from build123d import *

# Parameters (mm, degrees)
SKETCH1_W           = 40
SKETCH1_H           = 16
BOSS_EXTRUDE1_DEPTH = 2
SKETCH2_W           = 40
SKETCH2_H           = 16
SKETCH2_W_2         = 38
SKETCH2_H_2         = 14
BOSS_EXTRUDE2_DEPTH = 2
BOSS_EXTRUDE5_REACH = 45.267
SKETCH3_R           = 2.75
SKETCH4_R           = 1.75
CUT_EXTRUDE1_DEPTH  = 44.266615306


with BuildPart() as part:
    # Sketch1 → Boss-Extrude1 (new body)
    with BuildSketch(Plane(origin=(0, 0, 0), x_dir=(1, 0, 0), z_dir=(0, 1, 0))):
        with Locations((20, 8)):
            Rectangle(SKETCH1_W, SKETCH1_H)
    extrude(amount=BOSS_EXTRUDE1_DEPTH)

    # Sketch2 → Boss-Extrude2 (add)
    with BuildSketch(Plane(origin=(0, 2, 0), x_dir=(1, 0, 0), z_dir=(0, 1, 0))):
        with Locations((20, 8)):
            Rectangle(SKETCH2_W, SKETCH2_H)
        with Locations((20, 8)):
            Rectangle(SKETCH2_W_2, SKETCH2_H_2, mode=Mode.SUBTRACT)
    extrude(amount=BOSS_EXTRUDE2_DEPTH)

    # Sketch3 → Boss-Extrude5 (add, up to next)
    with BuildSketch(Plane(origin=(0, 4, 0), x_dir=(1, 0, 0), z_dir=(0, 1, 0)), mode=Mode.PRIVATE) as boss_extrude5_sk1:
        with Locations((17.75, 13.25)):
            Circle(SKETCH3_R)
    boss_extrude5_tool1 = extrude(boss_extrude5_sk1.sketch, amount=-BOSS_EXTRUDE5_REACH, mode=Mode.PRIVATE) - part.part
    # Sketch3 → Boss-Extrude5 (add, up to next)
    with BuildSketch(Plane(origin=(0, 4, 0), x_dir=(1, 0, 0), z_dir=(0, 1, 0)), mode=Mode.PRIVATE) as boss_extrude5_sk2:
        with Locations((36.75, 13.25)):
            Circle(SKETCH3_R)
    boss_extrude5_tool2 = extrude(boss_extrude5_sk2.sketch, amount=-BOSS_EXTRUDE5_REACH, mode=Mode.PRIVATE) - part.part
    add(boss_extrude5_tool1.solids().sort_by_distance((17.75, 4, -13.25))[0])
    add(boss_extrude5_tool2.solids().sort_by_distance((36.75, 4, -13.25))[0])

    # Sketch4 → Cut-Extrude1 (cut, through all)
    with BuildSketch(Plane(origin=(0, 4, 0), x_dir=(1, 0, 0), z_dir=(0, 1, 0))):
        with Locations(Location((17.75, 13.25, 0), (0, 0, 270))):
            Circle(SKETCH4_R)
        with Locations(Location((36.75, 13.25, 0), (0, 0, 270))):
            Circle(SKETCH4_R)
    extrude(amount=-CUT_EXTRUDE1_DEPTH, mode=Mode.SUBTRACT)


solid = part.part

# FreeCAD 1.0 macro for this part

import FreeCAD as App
import Part
import Sketcher

V = App.Vector

doc = App.newDocument("Part")
body = doc.addObject("PartDesign::Body", "Body")

# Sketch on XZ plane
sketch1 = body.newObject("Sketcher::SketchObject", "Sketch")
sketch1.AttachmentSupport = (doc.getObject("XZ_Plane"), [""])
sketch1.MapMode = "FlatFace"
sketch1.addGeometry([
    Part.LineSegment(V(0, -16, 0), V(0, 0, 0)),
    Part.LineSegment(V(0, 0, 0), V(40, 0, 0)),
    Part.LineSegment(V(40, 0, 0), V(40, -16, 0)),
    Part.LineSegment(V(40, -16, 0), V(0, -16, 0)),
], False)
sketch1.addConstraint([
    Sketcher.Constraint("Coincident", 0, 2, 1, 1),
    Sketcher.Constraint("Coincident", 1, 2, 2, 1),
    Sketcher.Constraint("Coincident", 2, 2, 3, 1),
    Sketcher.Constraint("Coincident", 3, 2, 0, 1),
    Sketcher.Constraint("Vertical", 0),
    Sketcher.Constraint("Horizontal", 1),
    Sketcher.Constraint("Vertical", 2),
    Sketcher.Constraint("Horizontal", 3),
    Sketcher.Constraint("Coincident", 0, 2, -1, 1),
    Sketcher.Constraint("DistanceX", 1, 1, 1, 2, 40.0),
    Sketcher.Constraint("DistanceY", 0, 1, 0, 2, 16.0),
])
pad1 = body.newObject("PartDesign::Pad", "Pad")
pad1.Profile = sketch1
pad1.Length = 2
pad1.Reversed = True

# Sketch on XZ plane
sketch2 = body.newObject("Sketcher::SketchObject", "Sketch001")
sketch2.AttachmentSupport = (doc.getObject("XZ_Plane"), [""])
sketch2.MapMode = "FlatFace"
sketch2.AttachmentOffset = App.Placement(V(0, 0, -2), App.Rotation())
sketch2.addGeometry([
    Part.LineSegment(V(0, -16, 0), V(0, 0, 0)),  # 0
    Part.LineSegment(V(0, 0, 0), V(40, 0, 0)),  # 1
    Part.LineSegment(V(40, 0, 0), V(40, -16, 0)),  # 2
    Part.LineSegment(V(40, -16, 0), V(0, -16, 0)),  # 3
    Part.LineSegment(V(39, -1, 0), V(1, -1, 0)),  # 4
    Part.LineSegment(V(1, -1, 0), V(1, -15, 0)),  # 5
    Part.LineSegment(V(1, -15, 0), V(39, -15, 0)),  # 6
    Part.LineSegment(V(39, -15, 0), V(39, -1, 0)),  # 7
], False)
sketch2.addConstraint([
    Sketcher.Constraint("Coincident", 0, 2, 1, 1),
    Sketcher.Constraint("Coincident", 1, 2, 2, 1),
    Sketcher.Constraint("Coincident", 2, 2, 3, 1),
    Sketcher.Constraint("Coincident", 3, 2, 0, 1),
    Sketcher.Constraint("Coincident", 4, 2, 5, 1),
    Sketcher.Constraint("Coincident", 5, 2, 6, 1),
    Sketcher.Constraint("Coincident", 6, 2, 7, 1),
    Sketcher.Constraint("Coincident", 7, 2, 4, 1),
    Sketcher.Constraint("Vertical", 0),
    Sketcher.Constraint("Horizontal", 1),
    Sketcher.Constraint("Vertical", 2),
    Sketcher.Constraint("Horizontal", 3),
    Sketcher.Constraint("Horizontal", 4),
    Sketcher.Constraint("Vertical", 5),
    Sketcher.Constraint("Horizontal", 6),
    Sketcher.Constraint("Vertical", 7),
    Sketcher.Constraint("Coincident", 0, 2, -1, 1),
    Sketcher.Constraint("DistanceX", 1, 1, 1, 2, 40.0),
    Sketcher.Constraint("DistanceX", 4, 2, 4, 1, 38.0),
    Sketcher.Constraint("DistanceY", 0, 1, 0, 2, 16.0),
    Sketcher.Constraint("DistanceY", 5, 2, 5, 1, 14.0),
    Sketcher.Constraint("DistanceX", -1, 1, 4, 2, 1.0),
    Sketcher.Constraint("DistanceY", 4, 2, -1, 1, 1.0),
])
pad2 = body.newObject("PartDesign::Pad", "Pad001")
pad2.Profile = sketch2
pad2.Length = 2
pad2.Reversed = True

# Sketch on XZ plane
sketch3 = body.newObject("Sketcher::SketchObject", "Sketch002")
sketch3.AttachmentSupport = (doc.getObject("XZ_Plane"), [""])
sketch3.MapMode = "FlatFace"
sketch3.AttachmentOffset = App.Placement(V(0, 0, -4), App.Rotation())
sketch3.addGeometry(Part.Circle(V(17.8, -13.2, 0), V(0, 0, 1), 2.8), False)
sketch3.addConstraint([
    Sketcher.Constraint("Diameter", 0, 5.5),
    Sketcher.Constraint("DistanceX", -1, 1, 0, 3, 17.75),
    Sketcher.Constraint("DistanceY", 0, 3, -1, 1, 13.25),
])
pad3 = body.newObject("PartDesign::Pad", "Pad002")
pad3.Profile = sketch3
pad3.Type = "UpToFirst"

# Sketch on XZ plane
sketch4 = body.newObject("Sketcher::SketchObject", "Sketch003")
sketch4.AttachmentSupport = (doc.getObject("XZ_Plane"), [""])
sketch4.MapMode = "FlatFace"
sketch4.AttachmentOffset = App.Placement(V(0, 0, -4), App.Rotation())
sketch4.addGeometry(Part.Circle(V(36.8, -13.2, 0), V(0, 0, 1), 2.8), False)
sketch4.addConstraint([
    Sketcher.Constraint("Diameter", 0, 5.5),
    Sketcher.Constraint("DistanceX", -1, 1, 0, 3, 36.75),
    Sketcher.Constraint("DistanceY", 0, 3, -1, 1, 13.25),
])
pad4 = body.newObject("PartDesign::Pad", "Pad003")
pad4.Profile = sketch4
pad4.Type = "UpToFirst"

# Sketch on XZ plane
sketch5 = body.newObject("Sketcher::SketchObject", "Sketch004")
sketch5.AttachmentSupport = (doc.getObject("XZ_Plane"), [""])
sketch5.MapMode = "FlatFace"
sketch5.AttachmentOffset = App.Placement(V(0, 0, -4), App.Rotation())
sketch5.addGeometry([
    Part.Circle(V(17.8, -13.2, 0), V(0, 0, 1), 1.8),
    Part.Circle(V(36.8, -13.2, 0), V(0, 0, 1), 1.8),
], False)
sketch5.addConstraint([
    Sketcher.Constraint("Equal", 0, 1),
    Sketcher.Constraint("Horizontal", 0, 3, 1, 3),
    Sketcher.Constraint("Diameter", 0, 3.5),
    Sketcher.Constraint("DistanceX", 0, 3, 1, 3, 19.0),
    Sketcher.Constraint("DistanceX", -1, 1, 0, 3, 17.75),
    Sketcher.Constraint("DistanceY", 0, 3, -1, 1, 13.25),
])
pocket1 = body.newObject("PartDesign::Pocket", "Pocket")
pocket1.Profile = sketch5
pocket1.Type = "ThroughAll"
pocket1.Reversed = True

doc.recompute()
